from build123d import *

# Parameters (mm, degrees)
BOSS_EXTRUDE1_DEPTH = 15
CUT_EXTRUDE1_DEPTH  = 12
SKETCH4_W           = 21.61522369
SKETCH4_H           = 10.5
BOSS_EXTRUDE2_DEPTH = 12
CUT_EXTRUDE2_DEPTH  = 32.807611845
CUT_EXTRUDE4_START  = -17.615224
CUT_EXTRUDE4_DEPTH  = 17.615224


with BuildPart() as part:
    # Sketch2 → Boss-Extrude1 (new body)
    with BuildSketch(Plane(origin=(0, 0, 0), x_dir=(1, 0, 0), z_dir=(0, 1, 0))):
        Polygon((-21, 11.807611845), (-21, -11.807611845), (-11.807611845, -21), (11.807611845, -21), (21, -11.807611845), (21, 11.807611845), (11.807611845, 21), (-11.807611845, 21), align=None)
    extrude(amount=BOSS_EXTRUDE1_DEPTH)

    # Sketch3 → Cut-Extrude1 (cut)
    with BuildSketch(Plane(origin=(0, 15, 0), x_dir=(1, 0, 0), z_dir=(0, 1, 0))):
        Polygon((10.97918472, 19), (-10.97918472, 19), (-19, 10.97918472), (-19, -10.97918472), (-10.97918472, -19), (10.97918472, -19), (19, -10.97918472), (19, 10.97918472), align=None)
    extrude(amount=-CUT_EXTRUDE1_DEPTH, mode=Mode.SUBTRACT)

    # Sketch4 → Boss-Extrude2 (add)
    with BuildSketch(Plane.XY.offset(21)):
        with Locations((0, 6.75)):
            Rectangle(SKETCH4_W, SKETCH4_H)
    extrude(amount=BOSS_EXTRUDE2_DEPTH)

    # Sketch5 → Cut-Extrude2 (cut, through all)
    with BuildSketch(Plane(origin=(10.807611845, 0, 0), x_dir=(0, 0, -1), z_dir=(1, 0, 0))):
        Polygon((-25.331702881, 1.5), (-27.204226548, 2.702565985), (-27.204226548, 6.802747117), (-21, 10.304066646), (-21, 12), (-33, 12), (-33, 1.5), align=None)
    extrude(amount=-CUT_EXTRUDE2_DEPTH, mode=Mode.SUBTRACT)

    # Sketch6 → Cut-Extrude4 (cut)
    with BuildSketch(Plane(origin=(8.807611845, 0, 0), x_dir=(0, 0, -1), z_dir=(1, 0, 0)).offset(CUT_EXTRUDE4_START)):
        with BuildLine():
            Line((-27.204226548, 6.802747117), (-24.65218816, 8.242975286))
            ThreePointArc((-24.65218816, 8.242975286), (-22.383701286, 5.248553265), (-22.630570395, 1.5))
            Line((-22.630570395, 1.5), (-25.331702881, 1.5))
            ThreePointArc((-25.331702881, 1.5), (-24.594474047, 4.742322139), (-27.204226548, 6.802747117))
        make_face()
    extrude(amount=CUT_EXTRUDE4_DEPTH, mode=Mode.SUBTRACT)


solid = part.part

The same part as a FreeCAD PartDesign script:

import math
import FreeCAD as App
import Part
import Sketcher


def add_polygon(sketch, points):
    """Adds a closed chain of lines whose ends are joined by coincident constraints."""
    first, n = sketch.GeometryCount, len(points)
    for a, b in zip(points, points[1:] + points[:1]):
        sketch.addGeometry(Part.LineSegment(App.Vector(*a, 0), App.Vector(*b, 0)), False)
    for i in range(n):
        sketch.addConstraint(Sketcher.Constraint("Coincident", first + i, 2, first + (i + 1) % n, 1))

doc = App.newDocument("Part")
params = doc.addObject("Spreadsheet::Sheet", "Params")
for row, (alias, value) in enumerate([
    ("sketch1_length", "13 mm"),
    ("pad1_length", "15 mm"),
    ("pocket1_length", "12 mm"),
    ("sketch3_height", "10.5 mm"),
    ("pad2_length", "12 mm"),
    ("sketch4_height", "12 mm"),
    ("sketch4_width", "10.5 mm"),
    ("pocket3_length", "17.615224 mm"),
], start=1):
    params.set(f"A{row}", alias)
    params.set(f"B{row}", "=" + value)
    params.setAlias(f"B{row}", alias)

body = doc.addObject("PartDesign::Body", "Body")

# Sketch on XZ plane
sketch1 = body.newObject("Sketcher::SketchObject", "Sketch")
sketch1.AttachmentSupport = (doc.getObject("XZ_Plane"), [""])
sketch1.MapMode = "FlatFace"
add_polygon(sketch1, [(-21, -12), (-21, 12), (-12, 21), (12, 21), (21, 12), (21, -12), (12, -21), (-12, -21)])  # lines 0-7
sketch1.addConstraint(Sketcher.Constraint("Vertical", 0))
sketch1.addConstraint(Sketcher.Constraint("Horizontal", 2))
sketch1.addConstraint(Sketcher.Constraint("Vertical", 4))
sketch1.addConstraint(Sketcher.Constraint("Horizontal", 6))
sketch1.addConstraint(Sketcher.Constraint("Symmetric", 0, 2, 4, 2, -1, 1))
sketch1.addConstraint(Sketcher.Constraint("Symmetric", 1, 2, 5, 2, -1, 1))
sketch1.addConstraint(Sketcher.Constraint("Perpendicular", 1, 3))
sketch1.addConstraint(Sketcher.Constraint("Perpendicular", 5, 7))
sketch1.addConstraint(Sketcher.Constraint("Horizontal", 0, 2, 3, 2))
sketch1.addConstraint(Sketcher.Constraint("Horizontal", 4, 2, 7, 2))
sketch1.addConstraint(Sketcher.Constraint("Vertical", 2, 2, 5, 2))
sketch1.addConstraint(Sketcher.Constraint("Equal", 6, 0))
sketch1.addConstraint(Sketcher.Constraint("Distance", 1, 13.0))
sketch1.addConstraint(Sketcher.Constraint("DistanceX", 0, 2, -1, 1, 21.0))
sketch1.setExpression("Constraints[20]", "Params.sketch1_length")
pad1 = body.newObject("PartDesign::Pad", "Pad")
pad1.Profile = sketch1
pad1.setExpression("Length", "Params.pad1_length")
pad1.Reversed = True

# Sketch on XZ plane
sketch2 = body.newObject("Sketcher::SketchObject", "Sketch001")
sketch2.AttachmentSupport = (doc.getObject("XZ_Plane"), [""])
sketch2.MapMode = "FlatFace"
sketch2.AttachmentOffset = App.Placement(App.Vector(0, 0, -15), App.Rotation())
add_polygon(sketch2, [(11, -19), (-11, -19), (-19, -11), (-19, 11), (-11, 19), (11, 19), (19, 11), (19, -11)])  # lines 0-7
sketch2.addConstraint(Sketcher.Constraint("Horizontal", 0))
sketch2.addConstraint(Sketcher.Constraint("Vertical", 2))
sketch2.addConstraint(Sketcher.Constraint("Horizontal", 4))
sketch2.addConstraint(Sketcher.Constraint("Vertical", 6))
sketch2.addConstraint(Sketcher.Constraint("Symmetric", 0, 2, 4, 2, -1, 1))
sketch2.addConstraint(Sketcher.Constraint("Symmetric", 1, 2, 5, 2, -1, 1))
sketch2.addConstraint(Sketcher.Constraint("Perpendicular", 1, 3))
sketch2.addConstraint(Sketcher.Constraint("Perpendicular", 5, 7))
sketch2.addConstraint(Sketcher.Constraint("Horizontal", 2, 2, 5, 2))
sketch2.addConstraint(Sketcher.Constraint("Horizontal", 1, 2, 6, 2))
sketch2.addConstraint(Sketcher.Constraint("Vertical", 0, 2, 3, 2))
sketch2.addConstraint(Sketcher.Constraint("Equal", 4, 2))
sketch2.addConstraint(Sketcher.Constraint("DistanceY", 0, 2, -1, 1, 19.0))
sketch2.addConstraint(Sketcher.Constraint("DistanceX", 0, 2, 0, 1, 21.958369))
pocket1 = body.newObject("PartDesign::Pocket", "Pocket")
pocket1.Profile = sketch2
pocket1.setExpression("Length", "Params.pocket1_length")
pocket1.Reversed = True

# Sketch on XY plane
sketch3 = body.newObject("Sketcher::SketchObject", "Sketch002")
sketch3.AttachmentSupport = (doc.getObject("XY_Plane"), [""])
sketch3.MapMode = "FlatFace"
sketch3.AttachmentOffset = App.Placement(App.Vector(0, 0, 21), App.Rotation())
add_polygon(sketch3, [(-11, 12), (-11, 2), (11, 2), (11, 12)])  # lines 0-3
sketch3.addConstraint(Sketcher.Constraint("Vertical", 0))
sketch3.addConstraint(Sketcher.Constraint("Horizontal", 1))
sketch3.addConstraint(Sketcher.Constraint("Vertical", 2))
sketch3.addConstraint(Sketcher.Constraint("Horizontal", 3))
sketch3.addConstraint(Sketcher.Constraint("DistanceY", 0, 2, 0, 1, 10.5))
sketch3.addConstraint(Sketcher.Constraint("DistanceY", -1, 1, 2, 2, 12.0))
sketch3.addConstraint(Sketcher.Constraint("DistanceX", 1, 1, 1, 2, 21.615224))
sketch3.addConstraint(Sketcher.Constraint("DistanceX", 0, 2, -1, 1, 10.807612))
sketch3.setExpression("Constraints[8]", "Params.sketch3_height")
pad2 = body.newObject("PartDesign::Pad", "Pad001")
pad2.Profile = sketch3
pad2.setExpression("Length", "Params.pad2_length")

# Sketch on YZ plane
sketch4 = body.newObject("Sketcher::SketchObject", "Sketch003")
sketch4.AttachmentSupport = (doc.getObject("YZ_Plane"), [""])
sketch4.MapMode = "FlatFace"
sketch4.AttachmentOffset = App.Placement(App.Vector(0, 0, 10.807612), App.Rotation())
add_polygon(sketch4, [(1.5, 25.3), (2.7, 27.2), (6.8, 27.2), (10.3, 21), (12, 21), (12, 33), (1.5, 33)])  # lines 0-6
sketch4.addConstraint(Sketcher.Constraint("Horizontal", 1))
sketch4.addConstraint(Sketcher.Constraint("Horizontal", 3))
sketch4.addConstraint(Sketcher.Constraint("Vertical", 4))
sketch4.addConstraint(Sketcher.Constraint("Horizontal", 5))
sketch4.addConstraint(Sketcher.Constraint("Vertical", 6))
sketch4.addConstraint(Sketcher.Constraint("DistanceY", 4, 1, 4, 2, 12.0))
sketch4.addConstraint(Sketcher.Constraint("DistanceX", 5, 2, 5, 1, 10.5))
sketch4.addConstraint(Sketcher.Constraint("DistanceY", -1, 1, 2, 2, 21.0))
sketch4.addConstraint(Sketcher.Constraint("DistanceX", -1, 1, 3, 2, 12.0))
sketch4.addConstraint(Sketcher.Constraint("DistanceX", 1, 1, 1, 2, 4.100181))
sketch4.addConstraint(Sketcher.Constraint("DistanceX", 0, 2, 2, 2, 7.601501))
sketch4.addConstraint(Sketcher.Constraint("Distance", 2, 7.12402))
sketch4.addConstraint(Sketcher.Constraint("DistanceX", 3, 1, 3, 2, 1.695933))
sketch4.addConstraint(Sketcher.Constraint("DistanceY", 6, 2, 6, 1, 7.668297))
sketch4.setExpression("Constraints[12]", "Params.sketch4_height")
sketch4.setExpression("Constraints[13]", "Params.sketch4_width")
pocket2 = body.newObject("PartDesign::Pocket", "Pocket001")
pocket2.Profile = sketch4
pocket2.Type = "ThroughAll"

# Sketch on YZ plane
sketch5 = body.newObject("Sketcher::SketchObject", "Sketch004")
sketch5.AttachmentSupport = (doc.getObject("YZ_Plane"), [""])
sketch5.MapMode = "FlatFace"
sketch5.AttachmentOffset = App.Placement(App.Vector(0, 0, -8.807612), App.Rotation())
sketch5.addGeometry(Part.LineSegment(App.Vector(8.2, 24.7, 0), App.Vector(6.8, 27.2, 0)), False)
sketch5.addGeometry(Part.ArcOfCircle(Part.Circle(App.Vector(3.7, 27.5, 0), App.Vector(0, 0, 1), 3.1), math.radians(-135), math.radians(-6)), False)
sketch5.addGeometry(Part.LineSegment(App.Vector(1.5, 25.3, 0), App.Vector(1.5, 22.6, 0)), False)
sketch5.addGeometry(Part.ArcOfCircle(Part.Circle(App.Vector(3.7, 27.5, 0), App.Vector(0, 0, 1), 5.4), math.radians(-114), math.radians(-32)), False)
sketch5.addConstraint(Sketcher.Constraint("Coincident", 0, 2, 1, 2))
sketch5.addConstraint(Sketcher.Constraint("Coincident", 1, 1, 2, 1))
sketch5.addConstraint(Sketcher.Constraint("Coincident", 2, 2, 3, 1))
sketch5.addConstraint(Sketcher.Constraint("Coincident", 3, 2, 0, 1))
sketch5.addConstraint(Sketcher.Constraint("Vertical", 2))
sketch5.addConstraint(Sketcher.Constraint("Coincident", 3, 3, 1, 3))
sketch5.addConstraint(Sketcher.Constraint("DistanceX", -1, 1, 1, 1, 1.5))
sketch5.addConstraint(Sketcher.Constraint("Radius", 1, 3.114823))
sketch5.addConstraint(Sketcher.Constraint("Radius", 3, 5.374237))
sketch5.addConstraint(Sketcher.Constraint("DistanceY", 2, 2, 2, 1, 2.701132))
sketch5.addConstraint(Sketcher.Constraint("DistanceY", -1, 1, 2, 2, 22.63057))
sketch5.addConstraint(Sketcher.Constraint("DistanceY", -1, 1, 3, 2, 24.652188))
sketch5.addConstraint(Sketcher.Constraint("DistanceX", 0, 2, 3, 2, 1.440228))
pocket3 = body.newObject("PartDesign::Pocket", "Pocket002")
pocket3.Profile = sketch5
pocket3.setExpression("Length", "Params.pocket3_length")
pocket3.Reversed = True

doc.recompute()
